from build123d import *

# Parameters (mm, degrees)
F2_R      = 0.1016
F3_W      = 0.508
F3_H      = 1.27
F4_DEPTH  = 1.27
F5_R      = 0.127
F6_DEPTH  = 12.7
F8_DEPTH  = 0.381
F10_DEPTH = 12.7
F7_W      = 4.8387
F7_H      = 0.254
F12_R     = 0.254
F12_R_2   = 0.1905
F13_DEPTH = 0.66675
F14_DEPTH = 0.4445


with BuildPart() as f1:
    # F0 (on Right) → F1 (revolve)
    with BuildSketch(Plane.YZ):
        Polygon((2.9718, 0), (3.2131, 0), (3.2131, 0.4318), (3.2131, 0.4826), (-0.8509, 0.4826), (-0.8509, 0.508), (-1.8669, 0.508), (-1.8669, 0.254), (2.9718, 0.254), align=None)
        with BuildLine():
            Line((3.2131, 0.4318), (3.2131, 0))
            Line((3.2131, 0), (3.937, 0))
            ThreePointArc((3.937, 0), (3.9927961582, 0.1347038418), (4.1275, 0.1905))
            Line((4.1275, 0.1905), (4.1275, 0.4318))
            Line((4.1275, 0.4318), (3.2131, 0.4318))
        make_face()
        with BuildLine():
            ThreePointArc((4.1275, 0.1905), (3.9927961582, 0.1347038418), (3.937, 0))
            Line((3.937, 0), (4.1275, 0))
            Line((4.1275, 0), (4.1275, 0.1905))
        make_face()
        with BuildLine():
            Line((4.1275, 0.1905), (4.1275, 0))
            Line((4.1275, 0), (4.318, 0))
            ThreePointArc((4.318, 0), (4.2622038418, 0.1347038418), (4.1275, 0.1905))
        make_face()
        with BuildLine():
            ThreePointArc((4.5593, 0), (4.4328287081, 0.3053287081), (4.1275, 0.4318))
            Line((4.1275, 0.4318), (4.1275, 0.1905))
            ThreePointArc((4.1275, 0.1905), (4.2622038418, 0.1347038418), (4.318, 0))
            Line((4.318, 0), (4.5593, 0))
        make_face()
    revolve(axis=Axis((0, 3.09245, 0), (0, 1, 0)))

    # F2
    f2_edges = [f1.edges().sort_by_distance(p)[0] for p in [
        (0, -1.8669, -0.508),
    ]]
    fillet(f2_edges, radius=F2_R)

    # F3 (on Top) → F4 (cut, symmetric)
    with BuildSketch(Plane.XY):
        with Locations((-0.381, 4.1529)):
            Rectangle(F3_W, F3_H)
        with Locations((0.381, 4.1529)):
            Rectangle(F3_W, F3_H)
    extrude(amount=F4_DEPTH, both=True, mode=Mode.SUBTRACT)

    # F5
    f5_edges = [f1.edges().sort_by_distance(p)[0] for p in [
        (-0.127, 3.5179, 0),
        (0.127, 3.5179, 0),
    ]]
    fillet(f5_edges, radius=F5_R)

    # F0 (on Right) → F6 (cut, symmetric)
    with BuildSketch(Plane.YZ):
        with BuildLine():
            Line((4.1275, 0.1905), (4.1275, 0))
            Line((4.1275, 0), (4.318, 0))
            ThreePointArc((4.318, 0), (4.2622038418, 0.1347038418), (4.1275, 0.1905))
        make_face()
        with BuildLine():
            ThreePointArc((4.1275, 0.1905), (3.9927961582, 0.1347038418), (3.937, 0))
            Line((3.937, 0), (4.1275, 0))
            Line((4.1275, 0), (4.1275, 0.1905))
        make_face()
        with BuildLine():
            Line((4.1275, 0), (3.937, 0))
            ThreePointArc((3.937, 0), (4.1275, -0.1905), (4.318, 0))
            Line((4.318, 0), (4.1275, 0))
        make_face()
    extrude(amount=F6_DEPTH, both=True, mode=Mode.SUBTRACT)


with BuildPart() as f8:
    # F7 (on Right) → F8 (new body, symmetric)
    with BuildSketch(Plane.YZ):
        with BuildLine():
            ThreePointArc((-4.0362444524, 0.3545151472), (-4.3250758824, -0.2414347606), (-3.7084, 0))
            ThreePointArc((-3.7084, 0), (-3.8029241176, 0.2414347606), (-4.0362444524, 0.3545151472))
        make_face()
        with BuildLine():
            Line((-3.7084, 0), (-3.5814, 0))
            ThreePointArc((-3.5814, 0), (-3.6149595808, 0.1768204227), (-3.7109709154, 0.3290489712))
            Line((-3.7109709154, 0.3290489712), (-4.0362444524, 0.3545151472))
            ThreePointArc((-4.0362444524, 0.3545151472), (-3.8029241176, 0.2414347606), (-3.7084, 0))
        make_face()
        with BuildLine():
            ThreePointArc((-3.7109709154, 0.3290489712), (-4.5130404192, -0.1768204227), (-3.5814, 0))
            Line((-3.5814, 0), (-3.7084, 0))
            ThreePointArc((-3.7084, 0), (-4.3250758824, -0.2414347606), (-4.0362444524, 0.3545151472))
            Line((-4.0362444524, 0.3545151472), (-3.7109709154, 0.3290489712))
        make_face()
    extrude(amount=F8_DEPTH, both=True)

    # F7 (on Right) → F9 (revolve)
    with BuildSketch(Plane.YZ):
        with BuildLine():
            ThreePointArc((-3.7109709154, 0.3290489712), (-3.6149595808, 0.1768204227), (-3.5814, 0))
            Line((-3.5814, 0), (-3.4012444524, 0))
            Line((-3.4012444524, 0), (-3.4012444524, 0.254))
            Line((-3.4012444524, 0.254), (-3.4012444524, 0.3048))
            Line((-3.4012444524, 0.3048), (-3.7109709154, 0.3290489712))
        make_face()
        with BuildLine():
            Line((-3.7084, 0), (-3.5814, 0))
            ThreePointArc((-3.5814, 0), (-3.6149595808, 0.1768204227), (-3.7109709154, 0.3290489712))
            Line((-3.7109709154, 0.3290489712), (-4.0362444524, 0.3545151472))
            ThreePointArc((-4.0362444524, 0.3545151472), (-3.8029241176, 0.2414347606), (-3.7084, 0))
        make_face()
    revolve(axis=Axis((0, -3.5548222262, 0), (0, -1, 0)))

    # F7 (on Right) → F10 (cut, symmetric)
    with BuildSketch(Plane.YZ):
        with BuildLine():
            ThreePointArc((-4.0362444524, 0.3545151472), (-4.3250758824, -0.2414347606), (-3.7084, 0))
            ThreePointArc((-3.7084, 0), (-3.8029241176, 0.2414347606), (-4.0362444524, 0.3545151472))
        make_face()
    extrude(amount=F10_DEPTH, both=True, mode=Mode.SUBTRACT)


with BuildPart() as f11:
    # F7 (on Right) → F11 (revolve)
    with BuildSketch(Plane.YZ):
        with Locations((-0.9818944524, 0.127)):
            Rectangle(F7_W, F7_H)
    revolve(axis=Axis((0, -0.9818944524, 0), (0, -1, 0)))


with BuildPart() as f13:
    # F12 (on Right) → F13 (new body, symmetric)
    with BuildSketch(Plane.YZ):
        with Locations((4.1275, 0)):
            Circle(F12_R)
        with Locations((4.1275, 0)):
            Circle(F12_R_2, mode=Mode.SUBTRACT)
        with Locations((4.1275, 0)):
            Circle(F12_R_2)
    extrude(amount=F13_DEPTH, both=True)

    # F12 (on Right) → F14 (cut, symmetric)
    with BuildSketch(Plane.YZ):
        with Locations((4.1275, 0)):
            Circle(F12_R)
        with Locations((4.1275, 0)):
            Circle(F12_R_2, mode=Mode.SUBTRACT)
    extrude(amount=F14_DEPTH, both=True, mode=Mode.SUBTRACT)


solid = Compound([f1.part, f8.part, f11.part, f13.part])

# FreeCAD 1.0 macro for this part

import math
import FreeCAD as App
import Part
import Sketcher
Q = App.Units.Quantity


def edges_at(feature, points):
    """Names of the edges that pass closest to the given points."""
    edges = feature.Shape.Edges
    near = lambda p: min(range(len(edges)), key=lambda i: edges[i].distToShape(Part.Vertex(*p))[0])
    return sorted({f"Edge{near(p) + 1}" for p in points})


def add_polygon(sketch, points):
    """Adds a closed chain of lines whose ends are joined by coincident constraints."""
    first, n = sketch.GeometryCount, len(points)
    for a, b in zip(points, points[1:] + points[:1]):
        sketch.addGeometry(Part.LineSegment(App.Vector(*a, 0), App.Vector(*b, 0)), False)
    for i in range(n):
        sketch.addConstraint(Sketcher.Constraint("Coincident", first + i, 2, first + (i + 1) % n, 1))

doc = App.newDocument("Part")
body = doc.addObject("PartDesign::Body", "Body")

# Sketch on YZ plane
sketch1 = body.newObject("Sketcher::SketchObject", "Sketch")
sketch1.AttachmentSupport = (doc.getObject("YZ_Plane"), [""])
sketch1.MapMode = "FlatFace"
sketch1.addGeometry([
    Part.LineSegment(App.Vector(-1.867, 0.254, 0), App.Vector(2.972, 0.254, 0)),  # 0
    Part.LineSegment(App.Vector(2.972, 0.254, 0), App.Vector(2.972, 0, 0)),  # 1
    Part.LineSegment(App.Vector(2.972, 0, 0), App.Vector(4.559, 0, 0)),  # 2
    Part.ArcOfCircle(Part.Circle(App.Vector(4.128, 0, 0), App.Vector(0, 0, 1), 0.432), math.radians(0), math.radians(90)),  # 3
    Part.LineSegment(App.Vector(4.128, 0.432, 0), App.Vector(3.213, 0.432, 0)),  # 4
    Part.LineSegment(App.Vector(3.213, 0.432, 0), App.Vector(3.213, 0.483, 0)),  # 5
    Part.LineSegment(App.Vector(3.213, 0.483, 0), App.Vector(-0.851, 0.483, 0)),  # 6
    Part.LineSegment(App.Vector(-0.851, 0.483, 0), App.Vector(-0.851, 0.508, 0)),  # 7
    Part.LineSegment(App.Vector(-0.851, 0.508, 0), App.Vector(-1.867, 0.508, 0)),  # 8
    Part.LineSegment(App.Vector(-1.867, 0.508, 0), App.Vector(-1.867, 0.254, 0)),  # 9
], False)
sketch1.addConstraint([
    Sketcher.Constraint("Coincident", 0, 2, 1, 1),
    Sketcher.Constraint("Coincident", 1, 2, 2, 1),
    Sketcher.Constraint("Coincident", 2, 2, 3, 1),
    Sketcher.Constraint("Tangent", 3, 2, 4, 1),
    Sketcher.Constraint("Coincident", 4, 2, 5, 1),
    Sketcher.Constraint("Coincident", 5, 2, 6, 1),
    Sketcher.Constraint("Coincident", 6, 2, 7, 1),
    Sketcher.Constraint("Coincident", 7, 2, 8, 1),
    Sketcher.Constraint("Coincident", 8, 2, 9, 1),
    Sketcher.Constraint("Coincident", 9, 2, 0, 1),
    Sketcher.Constraint("Horizontal", 0),
    Sketcher.Constraint("Vertical", 1),
    Sketcher.Constraint("Horizontal", 2),
    Sketcher.Constraint("Horizontal", 4),
    Sketcher.Constraint("Vertical", 5),
    Sketcher.Constraint("Horizontal", 6),
    Sketcher.Constraint("Vertical", 7),
    Sketcher.Constraint("Horizontal", 8),
    Sketcher.Constraint("Vertical", 9),
    Sketcher.Constraint("PointOnObject", 3, 3, -1),
    Sketcher.Constraint("PointOnObject", 1, 2, -1),
    Sketcher.Constraint("Equal", 1, 9),
    Sketcher.Constraint("Radius", 3, Q("0.017 in")),
    Sketcher.Constraint("DistanceX", 6, 2, 6, 1, Q("0.16 in")),
    Sketcher.Constraint("DistanceX", 8, 2, 8, 1, Q("0.04 in")),
    Sketcher.Constraint("DistanceY", 1, 2, 1, 1, Q("0.01 in")),
    Sketcher.Constraint("DistanceX", 2, 1, 2, 2, Q("0.0625 in")),
    Sketcher.Constraint("DistanceX", 4, 2, 4, 1, Q("0.036 in")),
    Sketcher.Constraint("DistanceY", 5, 1, 5, 2, Q("0.002 in")),
    Sketcher.Constraint("DistanceX", -1, 1, 0, 2, Q("0.117 in")),
])
revolution = body.newObject("PartDesign::Revolution", "Revolution")
revolution.Profile = sketch1
revolution.ReferenceAxis = (sketch1, ["H_Axis"])
revolution.Angle = 360
doc.recompute()

fillet = body.newObject("PartDesign::Fillet", "Fillet")
fillet.Base = (revolution, edges_at(revolution, [(0, -1.867, -0.508)]))
fillet.Radius = Q("0.004 in")

# Sketch on XY plane
sketch2 = body.newObject("Sketcher::SketchObject", "Sketch001")
sketch2.AttachmentSupport = (doc.getObject("XY_Plane"), [""])
sketch2.MapMode = "FlatFace"
add_polygon(sketch2, [(-0.6, 4.8), (-0.6, 3.5), (-0.1, 3.5), (-0.1, 4.8)])  # lines 0-3
add_polygon(sketch2, [(0.1, 4.8), (0.1, 3.5), (0.6, 3.5), (0.6, 4.8)])  # lines 4-7
sketch2.addConstraint([
    Sketcher.Constraint("Vertical", 0),
    Sketcher.Constraint("Horizontal", 1),
    Sketcher.Constraint("Vertical", 2),
    Sketcher.Constraint("Horizontal", 3),
    Sketcher.Constraint("Vertical", 4),
    Sketcher.Constraint("Horizontal", 5),
    Sketcher.Constraint("Vertical", 6),
    Sketcher.Constraint("Horizontal", 7),
    Sketcher.Constraint("Symmetric", 1, 2, 4, 2, -2),
    Sketcher.Constraint("Symmetric", 3, 2, 6, 2, -2),
    Sketcher.Constraint("DistanceX", 1, 1, 1, 2, Q("0.02 in")),
    Sketcher.Constraint("DistanceY", 0, 2, 0, 1, Q("0.05 in")),
    Sketcher.Constraint("DistanceX", 1, 2, 4, 2, Q("0.01 in")),
    Sketcher.Constraint("DistanceY", -1, 1, 0, 2, Q("0.1385 in")),
])
pocket1 = body.newObject("PartDesign::Pocket", "Pocket")
pocket1.Profile = sketch2
pocket1.Length = Q("0.1 in")
pocket1.Midplane = True
doc.recompute()

fillet2 = body.newObject("PartDesign::Fillet", "Fillet001")
fillet2.Base = (pocket1, edges_at(pocket1, [(-0.127, 3.518, 0), (0.127, 3.518, 0)]))
fillet2.Radius = Q("0.005 in")

# Sketch on YZ plane
sketch3 = body.newObject("Sketcher::SketchObject", "Sketch002")
sketch3.AttachmentSupport = (doc.getObject("YZ_Plane"), [""])
sketch3.MapMode = "FlatFace"
sketch3.addGeometry([
    Part.ArcOfCircle(Part.Circle(App.Vector(4.13, 0, 0), App.Vector(0, 0, 1), 0.19), math.radians(0), math.radians(90)),
    Part.ArcOfCircle(Part.Circle(App.Vector(4.13, 0, 0), App.Vector(0, 0, 1), 0.19), math.radians(90), math.radians(180)),
    Part.ArcOfCircle(Part.Circle(App.Vector(4.13, 0, 0), App.Vector(0, 0, 1), 0.19), math.radians(180), math.radians(360)),
], False)
sketch3.addConstraint([
    Sketcher.Constraint("Tangent", 0, 2, 1, 1),
    Sketcher.Constraint("Tangent", 1, 2, 2, 1),
    Sketcher.Constraint("Tangent", 2, 2, 0, 1),
    Sketcher.Constraint("PointOnObject", 0, 3, -1),
    Sketcher.Constraint("PointOnObject", 1, 2, -1),
    Sketcher.Constraint("PointOnObject", 2, 2, -1),
    Sketcher.Constraint("Vertical", 2, 3, 0, 2),
    Sketcher.Constraint("Radius", 0, Q("0.0075 in")),
    Sketcher.Constraint("DistanceX", -1, 1, 2, 2, Q("0.17 in")),
])
pocket2 = body.newObject("PartDesign::Pocket", "Pocket001")
pocket2.Profile = sketch3
pocket2.Length = Q("1 in")
pocket2.Midplane = True
body2 = doc.addObject("PartDesign::Body", "Body001")

# Sketch on YZ plane
sketch4 = body2.newObject("Sketcher::SketchObject", "Sketch003")
sketch4.AttachmentSupport = (doc.getObject("YZ_Plane001"), [""])
sketch4.MapMode = "FlatFace"
sketch4.addGeometry([
    Part.ArcOfCircle(Part.Circle(App.Vector(-4.06, 0, 0), App.Vector(0, 0, 1), 0.48), math.radians(0), math.radians(43)),
    Part.ArcOfCircle(Part.Circle(App.Vector(-4.06, 0, 0), App.Vector(0, 0, 1), 0.48), math.radians(43), math.radians(360)),
], False)
sketch4.addConstraint([
    Sketcher.Constraint("Tangent", 0, 1, 1, 2),
    Sketcher.Constraint("Coincident", 1, 1, 0, 2),
    Sketcher.Constraint("PointOnObject", 0, 3, -1),
    Sketcher.Constraint("PointOnObject", 0, 1, -1),
    Sketcher.Constraint("Radius", 0, Q("0.019 in")),
    Sketcher.Constraint("DistanceX", 0, 3, -1, 1, Q("0.16 in")),
    Sketcher.Constraint("DistanceX", 1, 1, -1, 1, Q("3.710971 mm")),
])
pad1 = body2.newObject("PartDesign::Pad", "Pad")
pad1.Profile = sketch4
pad1.Length = Q("0.03 in")
pad1.Midplane = True

# Sketch on YZ plane
sketch5 = body2.newObject("Sketcher::SketchObject", "Sketch004")
sketch5.AttachmentSupport = (doc.getObject("YZ_Plane001"), [""])
sketch5.MapMode = "FlatFace"
sketch5.addGeometry([
    Part.LineSegment(App.Vector(-3.4, 0, 0), App.Vector(-3.4, 0.3, 0)),  # 0
    Part.LineSegment(App.Vector(-3.4, 0.3, 0), App.Vector(-3.71, 0.33, 0)),  # 1
    Part.LineSegment(App.Vector(-3.71, 0.33, 0), App.Vector(-4.04, 0.35, 0)),  # 2
    Part.ArcOfCircle(Part.Circle(App.Vector(-4.06, 0, 0), App.Vector(0, 0, 1), 0.36), math.radians(0), math.radians(86)),  # 3
    Part.LineSegment(App.Vector(-3.71, 0, 0), App.Vector(-3.4, 0, 0)),  # 4
], False)
sketch5.addConstraint([
    Sketcher.Constraint("Coincident", 0, 2, 1, 1),
    Sketcher.Constraint("Coincident", 1, 2, 2, 1),
    Sketcher.Constraint("Tangent", 2, 2, 3, 2),
    Sketcher.Constraint("Coincident", 3, 1, 4, 1),
    Sketcher.Constraint("Coincident", 4, 2, 0, 1),
    Sketcher.Constraint("Vertical", 0),
    Sketcher.Constraint("Horizontal", 4),
    Sketcher.Constraint("PointOnObject", 3, 3, -1),
    Sketcher.Constraint("PointOnObject", 3, 1, -1),
    Sketcher.Constraint("Parallel", 1, 2),
    Sketcher.Constraint("Radius", 3, Q("0.014 in")),
    Sketcher.Constraint("DistanceY", 0, 1, 0, 2, Q("0.012 in")),
    Sketcher.Constraint("DistanceX", 3, 3, -1, 1, Q("0.16 in")),
    Sketcher.Constraint("DistanceX", 2, 2, 0, 2, Q("0.025 in")),
    Sketcher.Constraint("Distance", 2, Q("0.326269 mm")),
])
revolution2 = body2.newObject("PartDesign::Revolution", "Revolution001")
revolution2.Profile = sketch5
revolution2.ReferenceAxis = (sketch5, ["H_Axis"])
revolution2.Angle = 360

# Sketch on YZ plane
sketch6 = body2.newObject("Sketcher::SketchObject", "Sketch005")
sketch6.AttachmentSupport = (doc.getObject("YZ_Plane001"), [""])
sketch6.MapMode = "FlatFace"
sketch6.addGeometry([
    Part.ArcOfCircle(Part.Circle(App.Vector(-4.06, 0, 0), App.Vector(0, 0, 1), 0.36), math.radians(86), math.radians(360)),
    Part.ArcOfCircle(Part.Circle(App.Vector(-4.06, 0, 0), App.Vector(0, 0, 1), 0.36), math.radians(0), math.radians(86)),
], False)
sketch6.addConstraint([
    Sketcher.Constraint("Tangent", 0, 1, 1, 2),
    Sketcher.Constraint("Coincident", 1, 1, 0, 2),
    Sketcher.Constraint("PointOnObject", 0, 3, -1),
    Sketcher.Constraint("PointOnObject", 1, 1, -1),
    Sketcher.Constraint("Radius", 0, Q("0.014 in")),
    Sketcher.Constraint("DistanceX", 0, 3, -1, 1, Q("0.16 in")),
    Sketcher.Constraint("DistanceX", 0, 1, -1, 1, Q("4.036244 mm")),
])
pocket3 = body2.newObject("PartDesign::Pocket", "Pocket002")
pocket3.Profile = sketch6
pocket3.Length = Q("1 in")
pocket3.Midplane = True
body3 = doc.addObject("PartDesign::Body", "Body002")

# Sketch on YZ plane
sketch7 = body3.newObject("Sketcher::SketchObject", "Sketch006")
sketch7.AttachmentSupport = (doc.getObject("YZ_Plane002"), [""])
sketch7.MapMode = "FlatFace"
add_polygon(sketch7, [(-3.4, 0.25), (-3.4, 0), (1.44, 0), (1.44, 0.25)])  # lines 0-3
sketch7.addConstraint([
    Sketcher.Constraint("Vertical", 0),
    Sketcher.Constraint("Horizontal", 1),
    Sketcher.Constraint("Vertical", 2),
    Sketcher.Constraint("Horizontal", 3),
    Sketcher.Constraint("PointOnObject", 0, 2, -1),
    Sketcher.Constraint("DistanceY", 0, 2, 0, 1, Q("0.01 in")),
    Sketcher.Constraint("DistanceX", 1, 1, 1, 2, Q("0.1905 in")),
    Sketcher.Constraint("DistanceX", 0, 2, -1, 1, Q("3.401244 mm")),
])
revolution3 = body3.newObject("PartDesign::Revolution", "Revolution002")
revolution3.Profile = sketch7
revolution3.ReferenceAxis = (sketch7, ["H_Axis"])
revolution3.Angle = 360
body4 = doc.addObject("PartDesign::Body", "Body003")

# Sketch on YZ plane
sketch8 = body4.newObject("Sketcher::SketchObject", "Sketch007")
sketch8.AttachmentSupport = (doc.getObject("YZ_Plane003"), [""])
sketch8.MapMode = "FlatFace"
sketch8.addGeometry(Part.Circle(App.Vector(4.13, 0, 0), App.Vector(0, 0, 1), 0.25), False)
sketch8.addConstraint([
    Sketcher.Constraint("PointOnObject", 0, 3, -1),
    Sketcher.Constraint("Diameter", 0, Q("0.02 in")),
    Sketcher.Constraint("DistanceX", -1, 1, 0, 3, Q("0.1625 in")),
])
pad2 = body4.newObject("PartDesign::Pad", "Pad001")
pad2.Profile = sketch8
pad2.Length = Q("0.0525 in")
pad2.Midplane = True

# Sketch on YZ plane
sketch9 = body4.newObject("Sketcher::SketchObject", "Sketch008")
sketch9.AttachmentSupport = (doc.getObject("YZ_Plane003"), [""])
sketch9.MapMode = "FlatFace"
sketch9.addGeometry([
    Part.Circle(App.Vector(4.13, 0, 0), App.Vector(0, 0, 1), 0.25),
    Part.Circle(App.Vector(4.13, 0, 0), App.Vector(0, 0, 1), 0.19),
], False)
sketch9.addConstraint([
    Sketcher.Constraint("Coincident", 1, 3, 0, 3),
    Sketcher.Constraint("PointOnObject", 0, 3, -1),
    Sketcher.Constraint("Diameter", 0, Q("0.02 in")),
    Sketcher.Constraint("Diameter", 1, Q("0.015 in")),
    Sketcher.Constraint("DistanceX", -1, 1, 0, 3, Q("0.1625 in")),
])
pocket4 = body4.newObject("PartDesign::Pocket", "Pocket003")
pocket4.Profile = sketch9
pocket4.Length = Q("0.035 in")
pocket4.Midplane = True

doc.recompute()
